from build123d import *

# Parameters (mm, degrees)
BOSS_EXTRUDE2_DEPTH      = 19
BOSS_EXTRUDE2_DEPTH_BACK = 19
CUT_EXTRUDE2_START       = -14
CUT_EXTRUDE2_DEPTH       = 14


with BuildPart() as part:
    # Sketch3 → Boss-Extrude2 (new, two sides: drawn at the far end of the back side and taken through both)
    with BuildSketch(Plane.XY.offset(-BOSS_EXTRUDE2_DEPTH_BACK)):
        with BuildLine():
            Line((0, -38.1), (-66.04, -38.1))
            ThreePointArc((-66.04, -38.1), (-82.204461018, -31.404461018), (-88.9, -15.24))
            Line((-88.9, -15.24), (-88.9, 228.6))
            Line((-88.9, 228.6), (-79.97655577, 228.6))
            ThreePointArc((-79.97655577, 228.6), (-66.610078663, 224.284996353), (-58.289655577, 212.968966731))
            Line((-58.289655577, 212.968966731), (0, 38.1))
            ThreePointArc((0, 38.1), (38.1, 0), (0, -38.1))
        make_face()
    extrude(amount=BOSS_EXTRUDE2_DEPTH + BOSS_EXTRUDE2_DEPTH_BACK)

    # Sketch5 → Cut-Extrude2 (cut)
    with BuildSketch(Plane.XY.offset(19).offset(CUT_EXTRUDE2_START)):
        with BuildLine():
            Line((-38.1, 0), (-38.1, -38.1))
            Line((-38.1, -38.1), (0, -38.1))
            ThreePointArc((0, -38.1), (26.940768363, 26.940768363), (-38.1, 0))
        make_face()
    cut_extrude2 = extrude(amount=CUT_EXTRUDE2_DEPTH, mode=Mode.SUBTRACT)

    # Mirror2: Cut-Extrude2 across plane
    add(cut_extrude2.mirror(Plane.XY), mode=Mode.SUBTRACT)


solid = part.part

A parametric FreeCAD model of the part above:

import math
import FreeCAD as App
import Part
import Sketcher
from FreeCAD import Vector
Q = App.Units.Quantity

doc = App.newDocument("Part")
body = doc.addObject("PartDesign::Body", "Body")

sketch1 = doc.addObject("Sketcher::SketchObject", "Sketch")
body.addObject(sketch1)
sketch1.AttachmentSupport = (doc.XY_Plane, [""])
sketch1.MapMode = "FlatFace"
sketch1.addGeometry([
    Part.LineSegment(Vector(-66, -38, 0), Vector(0, -38, 0)),
    Part.ArcOfCircle(Part.Circle(Vector(0, 0, 0), Vector(0, 0, 1), 38), math.radians(-90), math.radians(90)),
    Part.LineSegment(Vector(0, 38, 0), Vector(-58, 213, 0)),
    Part.ArcOfCircle(Part.Circle(Vector(-80, 206, 0), Vector(0, 0, 1), 23), math.radians(18), math.radians(90)),
    Part.LineSegment(Vector(-80, 229, 0), Vector(-89, 229, 0)),
    Part.LineSegment(Vector(-89, 229, 0), Vector(-89, -15, 0)),
    Part.ArcOfCircle(Part.Circle(Vector(-66, -15, 0), Vector(0, 0, 1), 23), math.radians(180), math.radians(270)),
], False)
sketch1.addConstraint([
    Sketcher.Constraint("Tangent", 0, 2, 1, 1),
    Sketcher.Constraint("Coincident", 1, 2, 2, 1),
    Sketcher.Constraint("Tangent", 2, 2, 3, 1),
    Sketcher.Constraint("Tangent", 3, 2, 4, 1),
    Sketcher.Constraint("Coincident", 4, 2, 5, 1),
    Sketcher.Constraint("Tangent", 5, 2, 6, 1),
    Sketcher.Constraint("Tangent", 6, 2, 0, 1),
    Sketcher.Constraint("Horizontal", 0),
    Sketcher.Constraint("Horizontal", 4),
    Sketcher.Constraint("Vertical", 5),
    Sketcher.Constraint("Coincident", 1, 3, -1, 1),
    Sketcher.Constraint("Equal", 3, 6),
    Sketcher.Constraint("PointOnObject", 1, 2, -2),
    Sketcher.Constraint("Radius", 1, Q("1.5 in")),
    Sketcher.Constraint("Radius", 3, Q("0.9 in")),
    Sketcher.Constraint("DistanceX", 0, 1, 0, 2, Q("2.6 in")),
    Sketcher.Constraint("DistanceY", 5, 2, 5, 1, Q("9.6 in")),
    Sketcher.Constraint("DistanceX", 3, 3, 2, 2, 21.6869),
])
pad1 = doc.addObject("PartDesign::Pad", "Pad")
body.addObject(pad1)
pad1.Profile = sketch1
pad1.Type = "TwoLengths"
pad1.Length = 19
pad1.Length2 = 19

sketch2 = doc.addObject("Sketcher::SketchObject", "Sketch001")
body.addObject(sketch2)
sketch2.AttachmentSupport = (doc.XY_Plane, [""])
sketch2.MapMode = "FlatFace"
sketch2.AttachmentOffset = App.Placement(Vector(0, 0, 5), App.Rotation())
sketch2.addGeometry([
    Part.LineSegment(Vector(-38, 0, 0), Vector(-38, -38, 0)),
    Part.LineSegment(Vector(-38, -38, 0), Vector(0, -38, 0)),
    Part.ArcOfCircle(Part.Circle(Vector(0, 0, 0), Vector(0, 0, 1), 38), math.radians(-90), math.radians(180)),
], False)
sketch2.addConstraint([
    Sketcher.Constraint("Coincident", 0, 2, 1, 1),
    Sketcher.Constraint("Tangent", 1, 2, 2, 1),
    Sketcher.Constraint("Tangent", 2, 2, 0, 1),
    Sketcher.Constraint("Vertical", 0),
    Sketcher.Constraint("Horizontal", 1),
    Sketcher.Constraint("Coincident", 2, 3, -1, 1),
    Sketcher.Constraint("Radius", 2, Q("1.5 in")),
])
pocket1 = doc.addObject("PartDesign::Pocket", "Pocket")
body.addObject(pocket1)
pocket1.Profile = sketch2
pocket1.Length = 14
pocket1.Reversed = True
doc.recompute()

mirrored = doc.addObject("PartDesign::Mirrored", "Mirrored")
body.addObject(mirrored)
mirrored.Originals = [pocket1]
mirrored.MirrorPlane = (doc.XY_Plane, [""])
body.Tip = mirrored

doc.recompute()
